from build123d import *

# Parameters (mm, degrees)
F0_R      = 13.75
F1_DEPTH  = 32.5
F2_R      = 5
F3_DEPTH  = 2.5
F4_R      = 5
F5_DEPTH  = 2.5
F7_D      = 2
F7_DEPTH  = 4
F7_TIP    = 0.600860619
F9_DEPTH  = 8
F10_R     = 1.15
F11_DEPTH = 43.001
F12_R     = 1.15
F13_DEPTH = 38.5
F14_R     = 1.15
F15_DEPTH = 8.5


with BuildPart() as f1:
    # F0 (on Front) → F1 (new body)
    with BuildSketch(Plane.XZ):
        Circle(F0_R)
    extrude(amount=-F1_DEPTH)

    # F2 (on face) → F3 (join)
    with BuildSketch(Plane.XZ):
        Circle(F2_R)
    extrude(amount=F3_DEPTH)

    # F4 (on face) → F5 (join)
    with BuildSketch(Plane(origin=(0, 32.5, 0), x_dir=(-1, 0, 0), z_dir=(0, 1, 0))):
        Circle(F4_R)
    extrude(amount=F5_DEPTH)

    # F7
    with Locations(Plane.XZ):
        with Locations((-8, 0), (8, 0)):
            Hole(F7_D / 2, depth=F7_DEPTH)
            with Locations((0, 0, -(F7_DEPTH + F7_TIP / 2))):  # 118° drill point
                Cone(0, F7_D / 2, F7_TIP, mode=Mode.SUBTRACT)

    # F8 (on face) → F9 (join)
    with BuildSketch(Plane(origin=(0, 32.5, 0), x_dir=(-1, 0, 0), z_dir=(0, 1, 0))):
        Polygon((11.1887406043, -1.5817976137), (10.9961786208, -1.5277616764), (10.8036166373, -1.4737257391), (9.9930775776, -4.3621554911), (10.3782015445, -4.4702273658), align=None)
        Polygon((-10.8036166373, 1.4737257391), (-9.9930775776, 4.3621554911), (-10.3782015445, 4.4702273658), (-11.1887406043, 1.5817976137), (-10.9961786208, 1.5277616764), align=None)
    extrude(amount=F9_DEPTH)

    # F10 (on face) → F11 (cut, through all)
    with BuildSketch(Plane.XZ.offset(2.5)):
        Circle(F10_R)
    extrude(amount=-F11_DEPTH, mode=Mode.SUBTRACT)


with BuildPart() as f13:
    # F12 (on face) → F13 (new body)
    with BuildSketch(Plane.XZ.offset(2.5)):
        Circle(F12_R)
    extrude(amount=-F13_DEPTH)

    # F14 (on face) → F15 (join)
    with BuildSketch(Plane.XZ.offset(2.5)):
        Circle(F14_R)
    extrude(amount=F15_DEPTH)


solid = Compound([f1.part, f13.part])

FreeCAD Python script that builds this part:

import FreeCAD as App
import Part
import Sketcher

V = App.Vector
Q = App.Units.Quantity


def add_polygon(sketch, points):
    """Adds a closed chain of lines whose ends are joined by coincident constraints."""
    first, n = sketch.GeometryCount, len(points)
    for a, b in zip(points, points[1:] + points[:1]):
        sketch.addGeometry(Part.LineSegment(App.Vector(*a, 0), App.Vector(*b, 0)), False)
    for i in range(n):
        sketch.addConstraint(Sketcher.Constraint("Coincident", first + i, 2, first + (i + 1) % n, 1))

doc = App.newDocument("Part")
params = doc.addObject("Spreadsheet::Sheet", "Params")
for row, (alias, value) in enumerate([
    ("sketch1_diameter", "27.5 mm"),
    ("pad1_length", "32.5 mm"),
    ("sketch2_diameter", "10 mm"),
    ("pad2_length", "2.5 mm"),
    ("sketch3_diameter", "10 mm"),
    ("pad3_length", "2.5 mm"),
    ("sketch4_diameter", "2 mm"),
    ("hole_diameter", "2 mm"),
    ("hole_depth", "4 mm"),
    ("sketch5_length", "3 mm"),
    ("sketch5_length2", "0.4 mm"),
    ("pad4_length", "8 mm"),
    ("sketch6_diameter", "2.3 mm"),
    ("sketch7_diameter", "2.3 mm"),
    ("pad5_length", "38.5 mm"),
    ("sketch8_diameter", "2.3 mm"),
    ("pad6_length", "8.5 mm"),
], start=1):
    params.set(f"A{row}", alias)
    params.set(f"B{row}", "=" + value)
    params.setAlias(f"B{row}", alias)

body = doc.addObject("PartDesign::Body", "Body")

# Sketch on XZ plane
sketch1 = body.newObject("Sketcher::SketchObject", "Sketch")
sketch1.AttachmentSupport = (doc.getObject("XZ_Plane"), [""])
sketch1.MapMode = "FlatFace"
sketch1.addGeometry(Part.Circle(V(0, 0, 0), V(0, 0, 1), 13.75), False)
sketch1.addConstraint(Sketcher.Constraint("Coincident", 0, 3, -1, 1))
sketch1.addConstraint(Sketcher.Constraint("Diameter", 0, Q("27.5 mm")))
sketch1.setExpression("Constraints[1]", "Params.sketch1_diameter")
pad1 = body.newObject("PartDesign::Pad", "Pad")
pad1.Profile = sketch1
pad1.setExpression("Length", "Params.pad1_length")
pad1.Reversed = True

# Sketch on XZ plane
sketch2 = body.newObject("Sketcher::SketchObject", "Sketch001")
sketch2.AttachmentSupport = (doc.getObject("XZ_Plane"), [""])
sketch2.MapMode = "FlatFace"
sketch2.addGeometry(Part.Circle(V(0, 0, 0), V(0, 0, 1), 5), False)
sketch2.addConstraint(Sketcher.Constraint("Coincident", 0, 3, -1, 1))
sketch2.addConstraint(Sketcher.Constraint("Diameter", 0, Q("10 mm")))
sketch2.setExpression("Constraints[1]", "Params.sketch2_diameter")
pad2 = body.newObject("PartDesign::Pad", "Pad001")
pad2.Profile = sketch2
pad2.setExpression("Length", "Params.pad2_length")

# Sketch on XZ plane
sketch3 = body.newObject("Sketcher::SketchObject", "Sketch002")
sketch3.AttachmentSupport = (doc.getObject("XZ_Plane"), [""])
sketch3.MapMode = "FlatFace"
sketch3.AttachmentOffset = App.Placement(V(0, 0, -32.5), App.Rotation())
sketch3.addGeometry(Part.Circle(V(0, 0, 0), V(0, 0, 1), 5), False)
sketch3.addConstraint(Sketcher.Constraint("Coincident", 0, 3, -1, 1))
sketch3.addConstraint(Sketcher.Constraint("Diameter", 0, Q("10 mm")))
sketch3.setExpression("Constraints[1]", "Params.sketch3_diameter")
pad3 = body.newObject("PartDesign::Pad", "Pad002")
pad3.Profile = sketch3
pad3.setExpression("Length", "Params.pad3_length")
pad3.Reversed = True

# Sketch on XZ plane
sketch4 = body.newObject("Sketcher::SketchObject", "Sketch003")
sketch4.AttachmentSupport = (doc.getObject("XZ_Plane"), [""])
sketch4.MapMode = "FlatFace"
sketch4.addGeometry(Part.Circle(V(-8, 0, 0), V(0, 0, 1), 1), False)
sketch4.addGeometry(Part.Circle(V(8, 0, 0), V(0, 0, 1), 1), False)
sketch4.addConstraint(Sketcher.Constraint("Equal", 0, 1))
sketch4.addConstraint(Sketcher.Constraint("Symmetric", 0, 3, 1, 3, -1, 1))
sketch4.addConstraint(Sketcher.Constraint("PointOnObject", 0, 3, -1))
sketch4.addConstraint(Sketcher.Constraint("Diameter", 0, Q("2 mm")))
sketch4.addConstraint(Sketcher.Constraint("DistanceX", 0, 3, -1, 1, Q("8 mm")))
sketch4.setExpression("Constraints[3]", "Params.sketch4_diameter")
doc.recompute()
hole = body.newObject("PartDesign::Hole", "Hole")
hole.Profile = sketch4
hole.ThreadType = "None"
hole.setExpression("Diameter", "Params.hole_diameter")
hole.DepthType = "Dimension"
hole.setExpression("Depth", "Params.hole_depth")
hole.DrillPoint = "Angled"
hole.DrillPointAngle = 118

# Sketch on XZ plane
sketch5 = body.newObject("Sketcher::SketchObject", "Sketch004")
sketch5.AttachmentSupport = (doc.getObject("XZ_Plane"), [""])
sketch5.MapMode = "FlatFace"
sketch5.AttachmentOffset = App.Placement(V(0, 0, -32.5), App.Rotation())
add_polygon(sketch5, [(-11.188741, -1.581798), (-10.803617, -1.473726), (-9.993078, -4.362155), (-10.378202, -4.470227)])  # lines 0-3
add_polygon(sketch5, [(10.803617, 1.473726), (9.993078, 4.362155), (10.378202, 4.470227), (11.188741, 1.581798)])  # lines 4-7
sketch5.addConstraint(Sketcher.Constraint("Symmetric", 1, 2, 4, 2, -1, 1))
sketch5.addConstraint(Sketcher.Constraint("Symmetric", 2, 2, 5, 2, -1, 1))
sketch5.addConstraint(Sketcher.Constraint("Symmetric", 3, 2, 6, 2, -1, 1))
sketch5.addConstraint(Sketcher.Constraint("Symmetric", 0, 2, 7, 2, -1, 1))
sketch5.addConstraint(Sketcher.Constraint("Perpendicular", 0, 1))
sketch5.addConstraint(Sketcher.Constraint("Perpendicular", 1, 2))
sketch5.addConstraint(Sketcher.Constraint("Perpendicular", 2, 3))
sketch5.addConstraint(Sketcher.Constraint("Distance", 1, Q("3 mm")))
sketch5.addConstraint(Sketcher.Constraint("Distance", 0, Q("0.4 mm")))
sketch5.addConstraint(Sketcher.Constraint("DistanceX", 2, 2, -1, 1, Q("10.378202 mm")))
sketch5.addConstraint(Sketcher.Constraint("DistanceY", 2, 2, 0, 2, Q("2.996502 mm")))
sketch5.addConstraint(Sketcher.Constraint("DistanceY", 0, 2, 4, 2, Q("5.835881 mm")))
sketch5.setExpression("Constraints[15]", "Params.sketch5_length")
sketch5.setExpression("Constraints[16]", "Params.sketch5_length2")
pad4 = body.newObject("PartDesign::Pad", "Pad003")
pad4.Profile = sketch5
pad4.setExpression("Length", "Params.pad4_length")
pad4.Reversed = True

# Sketch on XZ plane
sketch6 = body.newObject("Sketcher::SketchObject", "Sketch005")
sketch6.AttachmentSupport = (doc.getObject("XZ_Plane"), [""])
sketch6.MapMode = "FlatFace"
sketch6.AttachmentOffset = App.Placement(V(0, 0, 2.5), App.Rotation())
sketch6.addGeometry(Part.Circle(V(0, 0, 0), V(0, 0, 1), 1.15), False)
sketch6.addConstraint(Sketcher.Constraint("Coincident", 0, 3, -1, 1))
sketch6.addConstraint(Sketcher.Constraint("Diameter", 0, Q("2.3 mm")))
sketch6.setExpression("Constraints[1]", "Params.sketch6_diameter")
pocket1 = body.newObject("PartDesign::Pocket", "Pocket")
pocket1.Profile = sketch6
pocket1.Type = "ThroughAll"
body2 = doc.addObject("PartDesign::Body", "Body001")

# Sketch on XZ plane
sketch7 = body2.newObject("Sketcher::SketchObject", "Sketch006")
sketch7.AttachmentSupport = (doc.getObject("XZ_Plane001"), [""])
sketch7.MapMode = "FlatFace"
sketch7.AttachmentOffset = App.Placement(V(0, 0, 2.5), App.Rotation())
sketch7.addGeometry(Part.Circle(V(0, 0, 0), V(0, 0, 1), 1.15), False)
sketch7.addConstraint(Sketcher.Constraint("Coincident", 0, 3, -1, 1))
sketch7.addConstraint(Sketcher.Constraint("Diameter", 0, Q("2.3 mm")))
sketch7.setExpression("Constraints[1]", "Params.sketch7_diameter")
pad5 = body2.newObject("PartDesign::Pad", "Pad004")
pad5.Profile = sketch7
pad5.setExpression("Length", "Params.pad5_length")
pad5.Reversed = True

# Sketch on XZ plane
sketch8 = body2.newObject("Sketcher::SketchObject", "Sketch007")
sketch8.AttachmentSupport = (doc.getObject("XZ_Plane001"), [""])
sketch8.MapMode = "FlatFace"
sketch8.AttachmentOffset = App.Placement(V(0, 0, 2.5), App.Rotation())
sketch8.addGeometry(Part.Circle(V(0, 0, 0), V(0, 0, 1), 1.15), False)
sketch8.addConstraint(Sketcher.Constraint("Coincident", 0, 3, -1, 1))
sketch8.addConstraint(Sketcher.Constraint("Diameter", 0, Q("2.3 mm")))
sketch8.setExpression("Constraints[1]", "Params.sketch8_diameter")
pad6 = body2.newObject("PartDesign::Pad", "Pad005")
pad6.Profile = sketch8
pad6.setExpression("Length", "Params.pad6_length")

doc.recompute()
